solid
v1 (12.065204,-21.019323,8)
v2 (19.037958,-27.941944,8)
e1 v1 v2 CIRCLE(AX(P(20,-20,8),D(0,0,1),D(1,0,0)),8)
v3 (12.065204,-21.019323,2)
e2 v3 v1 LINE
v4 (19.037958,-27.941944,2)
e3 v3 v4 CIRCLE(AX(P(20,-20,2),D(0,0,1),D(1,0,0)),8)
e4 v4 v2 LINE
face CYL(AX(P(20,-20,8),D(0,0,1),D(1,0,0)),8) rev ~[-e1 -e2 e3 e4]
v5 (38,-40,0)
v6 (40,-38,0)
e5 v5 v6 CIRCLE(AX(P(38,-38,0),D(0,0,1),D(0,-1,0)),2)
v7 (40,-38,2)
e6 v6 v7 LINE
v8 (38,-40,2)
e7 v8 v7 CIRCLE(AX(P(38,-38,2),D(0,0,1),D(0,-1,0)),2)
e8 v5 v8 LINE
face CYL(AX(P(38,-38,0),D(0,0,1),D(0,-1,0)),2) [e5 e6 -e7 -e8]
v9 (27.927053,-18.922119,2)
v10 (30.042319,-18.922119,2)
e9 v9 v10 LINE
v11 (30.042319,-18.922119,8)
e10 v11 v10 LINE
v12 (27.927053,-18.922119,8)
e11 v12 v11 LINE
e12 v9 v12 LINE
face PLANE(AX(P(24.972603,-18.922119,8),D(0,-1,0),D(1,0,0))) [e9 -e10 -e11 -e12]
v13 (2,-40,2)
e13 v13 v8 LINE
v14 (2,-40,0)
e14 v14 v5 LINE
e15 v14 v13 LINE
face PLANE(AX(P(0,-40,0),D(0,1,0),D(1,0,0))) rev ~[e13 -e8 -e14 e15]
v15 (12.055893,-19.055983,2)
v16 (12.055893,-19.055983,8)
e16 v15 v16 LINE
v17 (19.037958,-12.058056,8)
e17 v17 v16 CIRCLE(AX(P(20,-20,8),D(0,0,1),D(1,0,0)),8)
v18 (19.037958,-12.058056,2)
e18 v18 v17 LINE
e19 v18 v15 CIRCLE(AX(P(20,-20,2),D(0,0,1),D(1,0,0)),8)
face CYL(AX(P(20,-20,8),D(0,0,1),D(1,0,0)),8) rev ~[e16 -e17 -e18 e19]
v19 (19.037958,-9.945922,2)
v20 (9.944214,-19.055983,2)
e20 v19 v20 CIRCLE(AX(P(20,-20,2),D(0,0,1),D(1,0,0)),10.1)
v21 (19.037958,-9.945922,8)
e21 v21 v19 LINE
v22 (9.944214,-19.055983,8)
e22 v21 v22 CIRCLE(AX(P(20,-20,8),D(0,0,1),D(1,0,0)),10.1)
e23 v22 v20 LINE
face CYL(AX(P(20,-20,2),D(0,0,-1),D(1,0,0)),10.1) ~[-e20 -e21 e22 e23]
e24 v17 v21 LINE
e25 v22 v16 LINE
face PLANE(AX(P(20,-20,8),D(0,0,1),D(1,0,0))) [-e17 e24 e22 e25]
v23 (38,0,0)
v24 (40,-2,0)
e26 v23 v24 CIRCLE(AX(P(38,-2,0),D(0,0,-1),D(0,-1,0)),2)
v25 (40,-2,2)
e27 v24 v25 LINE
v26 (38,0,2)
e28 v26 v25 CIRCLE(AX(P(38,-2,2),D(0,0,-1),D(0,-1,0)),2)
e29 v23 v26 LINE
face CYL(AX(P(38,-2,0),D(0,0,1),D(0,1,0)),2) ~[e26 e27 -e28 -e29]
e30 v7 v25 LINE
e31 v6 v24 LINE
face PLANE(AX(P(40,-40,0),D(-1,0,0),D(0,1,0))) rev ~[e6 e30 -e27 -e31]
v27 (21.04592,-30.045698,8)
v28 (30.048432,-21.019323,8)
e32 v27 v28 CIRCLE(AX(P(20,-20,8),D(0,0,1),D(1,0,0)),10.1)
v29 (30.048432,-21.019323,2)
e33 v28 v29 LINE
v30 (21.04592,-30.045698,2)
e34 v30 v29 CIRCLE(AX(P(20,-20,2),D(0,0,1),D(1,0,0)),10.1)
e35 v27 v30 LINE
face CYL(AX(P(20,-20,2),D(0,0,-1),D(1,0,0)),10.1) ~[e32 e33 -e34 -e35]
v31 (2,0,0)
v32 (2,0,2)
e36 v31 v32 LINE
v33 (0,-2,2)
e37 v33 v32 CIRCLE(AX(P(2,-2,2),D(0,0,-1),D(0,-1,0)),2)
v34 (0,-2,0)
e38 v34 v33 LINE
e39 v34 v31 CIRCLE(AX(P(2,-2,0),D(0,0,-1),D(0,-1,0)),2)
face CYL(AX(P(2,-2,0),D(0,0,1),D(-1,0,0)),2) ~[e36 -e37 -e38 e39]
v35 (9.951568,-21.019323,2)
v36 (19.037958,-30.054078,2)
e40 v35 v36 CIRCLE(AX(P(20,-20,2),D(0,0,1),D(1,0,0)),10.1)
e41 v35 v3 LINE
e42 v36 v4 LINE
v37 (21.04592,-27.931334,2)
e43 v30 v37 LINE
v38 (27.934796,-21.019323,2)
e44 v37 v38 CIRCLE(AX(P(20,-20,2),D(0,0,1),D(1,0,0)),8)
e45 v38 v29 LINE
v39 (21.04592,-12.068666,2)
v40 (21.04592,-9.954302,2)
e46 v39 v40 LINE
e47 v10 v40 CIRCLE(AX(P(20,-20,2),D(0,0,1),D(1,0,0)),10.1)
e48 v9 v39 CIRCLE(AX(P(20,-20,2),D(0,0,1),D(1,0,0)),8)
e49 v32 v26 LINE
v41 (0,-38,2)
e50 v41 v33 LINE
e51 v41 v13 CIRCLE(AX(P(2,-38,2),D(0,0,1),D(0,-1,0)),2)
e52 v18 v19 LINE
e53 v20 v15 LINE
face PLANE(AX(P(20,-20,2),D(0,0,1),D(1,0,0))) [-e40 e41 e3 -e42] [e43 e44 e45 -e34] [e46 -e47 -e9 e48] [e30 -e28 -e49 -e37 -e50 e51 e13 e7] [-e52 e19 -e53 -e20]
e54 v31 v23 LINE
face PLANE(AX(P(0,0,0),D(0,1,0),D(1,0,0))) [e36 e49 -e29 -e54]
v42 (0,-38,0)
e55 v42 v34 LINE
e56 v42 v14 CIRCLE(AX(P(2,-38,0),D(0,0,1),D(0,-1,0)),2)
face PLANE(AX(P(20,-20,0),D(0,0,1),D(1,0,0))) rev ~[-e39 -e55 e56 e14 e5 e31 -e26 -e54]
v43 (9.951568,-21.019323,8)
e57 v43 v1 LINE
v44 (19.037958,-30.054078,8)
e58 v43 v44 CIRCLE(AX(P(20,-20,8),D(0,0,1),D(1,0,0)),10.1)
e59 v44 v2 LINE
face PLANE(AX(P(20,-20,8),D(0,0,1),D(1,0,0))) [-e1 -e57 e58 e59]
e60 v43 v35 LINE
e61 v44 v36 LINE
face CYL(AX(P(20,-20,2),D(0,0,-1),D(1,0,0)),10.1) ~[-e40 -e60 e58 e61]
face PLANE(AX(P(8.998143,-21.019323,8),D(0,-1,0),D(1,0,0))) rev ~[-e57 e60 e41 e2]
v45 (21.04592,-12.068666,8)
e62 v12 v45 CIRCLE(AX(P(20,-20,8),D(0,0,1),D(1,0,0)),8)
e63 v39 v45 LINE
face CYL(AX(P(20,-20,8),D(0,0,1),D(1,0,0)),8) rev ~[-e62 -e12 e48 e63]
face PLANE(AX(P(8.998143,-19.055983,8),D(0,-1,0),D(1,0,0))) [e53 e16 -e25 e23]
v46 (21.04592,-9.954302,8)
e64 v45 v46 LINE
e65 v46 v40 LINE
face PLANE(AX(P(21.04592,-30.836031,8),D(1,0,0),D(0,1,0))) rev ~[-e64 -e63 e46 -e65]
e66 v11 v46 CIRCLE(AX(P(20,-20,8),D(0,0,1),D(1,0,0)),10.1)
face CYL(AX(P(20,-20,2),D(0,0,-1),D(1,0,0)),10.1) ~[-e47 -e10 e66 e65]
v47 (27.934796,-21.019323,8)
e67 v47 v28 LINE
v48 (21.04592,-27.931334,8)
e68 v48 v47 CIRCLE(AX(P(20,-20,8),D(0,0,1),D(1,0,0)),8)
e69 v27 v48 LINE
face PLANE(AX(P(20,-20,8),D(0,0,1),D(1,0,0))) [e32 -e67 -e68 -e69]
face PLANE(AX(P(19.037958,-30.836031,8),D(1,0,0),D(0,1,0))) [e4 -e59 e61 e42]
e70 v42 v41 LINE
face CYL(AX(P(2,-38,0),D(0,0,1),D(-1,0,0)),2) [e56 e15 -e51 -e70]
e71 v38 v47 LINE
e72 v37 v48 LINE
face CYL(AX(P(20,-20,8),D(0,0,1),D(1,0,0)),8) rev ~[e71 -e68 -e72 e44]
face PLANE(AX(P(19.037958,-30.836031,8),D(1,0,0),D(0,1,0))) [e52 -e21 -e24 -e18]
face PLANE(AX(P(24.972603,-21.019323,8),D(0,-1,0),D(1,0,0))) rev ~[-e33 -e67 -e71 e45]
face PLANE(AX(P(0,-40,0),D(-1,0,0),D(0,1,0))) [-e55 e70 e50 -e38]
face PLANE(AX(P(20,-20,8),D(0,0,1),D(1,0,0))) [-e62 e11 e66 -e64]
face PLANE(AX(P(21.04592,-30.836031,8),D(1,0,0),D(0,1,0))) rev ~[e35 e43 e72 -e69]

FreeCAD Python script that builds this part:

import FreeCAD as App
import Part
import Sketcher

V = App.Vector


def edges_at(feature, points):
    """Names of the edges that pass closest to the given points."""
    edges = feature.Shape.Edges
    near = lambda p: min(range(len(edges)), key=lambda i: edges[i].distToShape(Part.Vertex(*p))[0])
    return sorted({f"Edge{near(p) + 1}" for p in points})


def add_polygon(sketch, points):
    """Adds a closed chain of lines whose ends are joined by coincident constraints."""
    first, n = sketch.GeometryCount, len(points)
    for a, b in zip(points, points[1:] + points[:1]):
        sketch.addGeometry(Part.LineSegment(App.Vector(*a, 0), App.Vector(*b, 0)), False)
    for i in range(n):
        sketch.addConstraint(Sketcher.Constraint("Coincident", first + i, 2, first + (i + 1) % n, 1))

doc = App.newDocument("Part")
body = doc.addObject("PartDesign::Body", "Body")

sketch1 = body.newObject("Sketcher::SketchObject", "Sketch")
sketch1.AttachmentSupport = (doc.getObject("XY_Plane"), [""])
sketch1.MapMode = "FlatFace"
add_polygon(sketch1, [(0, 0), (0, -40), (40, -40), (40, 0)])
sketch1.addConstraint(Sketcher.Constraint("Vertical", 0))
sketch1.addConstraint(Sketcher.Constraint("Horizontal", 1))
sketch1.addConstraint(Sketcher.Constraint("Vertical", 2))
sketch1.addConstraint(Sketcher.Constraint("Horizontal", 3))
sketch1.addConstraint(Sketcher.Constraint("Coincident", 3, 2, -1, 1))
sketch1.addConstraint(Sketcher.Constraint("Equal", 3, 0))
sketch1.addConstraint(Sketcher.Constraint("DistanceX", 1, 1, 1, 2, 40.0))
pad1 = body.newObject("PartDesign::Pad", "Pad")
pad1.Profile = sketch1
pad1.Length = 2

sketch2 = body.newObject("Sketcher::SketchObject", "Sketch001")
sketch2.AttachmentSupport = (doc.getObject("XY_Plane"), [""])
sketch2.MapMode = "FlatFace"
sketch2.AttachmentOffset = App.Placement(V(0, 0, 2), App.Rotation())
sketch2.addGeometry(Part.Circle(V(20, -20, 0), V(0, 0, 1), 10), False)
sketch2.addConstraint(Sketcher.Constraint("Diameter", 0, 20.2))
sketch2.addConstraint(Sketcher.Constraint("DistanceX", -1, 1, 0, 3, 20.0))
sketch2.addConstraint(Sketcher.Constraint("DistanceY", 0, 3, -1, 1, 20.0))
pad2 = body.newObject("PartDesign::Pad", "Pad001")
pad2.Profile = sketch2
pad2.Length = 6

sketch3 = body.newObject("Sketcher::SketchObject", "Sketch002")
sketch3.AttachmentSupport = (doc.getObject("XY_Plane"), [""])
sketch3.MapMode = "FlatFace"
sketch3.AttachmentOffset = App.Placement(V(0, 0, 8), App.Rotation())
sketch3.addGeometry(Part.Circle(V(20, -20, 0), V(0, 0, 1), 8), False)
sketch3.addConstraint(Sketcher.Constraint("Diameter", 0, 16.0))
sketch3.addConstraint(Sketcher.Constraint("DistanceX", -1, 1, 0, 3, 20.0))
sketch3.addConstraint(Sketcher.Constraint("DistanceY", 0, 3, -1, 1, 20.0))
pocket1 = body.newObject("PartDesign::Pocket", "Pocket")
pocket1.Profile = sketch3
pocket1.Length = 6

sketch4 = body.newObject("Sketcher::SketchObject", "Sketch003")
sketch4.AttachmentSupport = (doc.getObject("XY_Plane"), [""])
sketch4.MapMode = "FlatFace"
sketch4.AttachmentOffset = App.Placement(V(0, 0, 8), App.Rotation())
add_polygon(sketch4, [(19, -9), (19, -30.8), (21, -30.8), (21, -9)])
add_polygon(sketch4, [(25, -18.9), (25, -21), (32.1, -21), (32.1, -18.9)])
add_polygon(sketch4, [(9, -19.1), (9, -21), (15.9, -21), (15.9, -19.1)])
sketch4.addConstraint(Sketcher.Constraint("Vertical", 0))
sketch4.addConstraint(Sketcher.Constraint("Horizontal", 1))
sketch4.addConstraint(Sketcher.Constraint("Vertical", 2))
sketch4.addConstraint(Sketcher.Constraint("Horizontal", 3))
sketch4.addConstraint(Sketcher.Constraint("Vertical", 4))
sketch4.addConstraint(Sketcher.Constraint("Horizontal", 5))
sketch4.addConstraint(Sketcher.Constraint("Vertical", 6))
sketch4.addConstraint(Sketcher.Constraint("Horizontal", 7))
sketch4.addConstraint(Sketcher.Constraint("Vertical", 8))
sketch4.addConstraint(Sketcher.Constraint("Horizontal", 9))
sketch4.addConstraint(Sketcher.Constraint("Vertical", 10))
sketch4.addConstraint(Sketcher.Constraint("Horizontal", 11))
sketch4.addConstraint(Sketcher.Constraint("Horizontal", 5, 2, 8, 2))
sketch4.addConstraint(Sketcher.Constraint("DistanceX", 1, 1, 1, 2, 2.007961))
sketch4.addConstraint(Sketcher.Constraint("DistanceY", 8, 2, 8, 1, 1.96334))
sketch4.addConstraint(Sketcher.Constraint("DistanceX", 9, 2, 0, 2, 3.123499))
sketch4.addConstraint(Sketcher.Constraint("DistanceX", 5, 1, 5, 2, 7.094803))
sketch4.addConstraint(Sketcher.Constraint("DistanceX", 9, 1, 9, 2, 6.916317))
sketch4.addConstraint(Sketcher.Constraint("DistanceY", 0, 2, 0, 1, 21.864484))
sketch4.addConstraint(Sketcher.Constraint("DistanceY", 4, 2, 4, 1, 2.097204))
sketch4.addConstraint(Sketcher.Constraint("DistanceX", -1, 1, 0, 2, 19.037958))
sketch4.addConstraint(Sketcher.Constraint("DistanceY", 0, 2, -1, 1, 30.836031))
sketch4.addConstraint(Sketcher.Constraint("DistanceY", 6, 2, -1, 1, 18.922119))
sketch4.addConstraint(Sketcher.Constraint("DistanceX", 8, 2, 4, 2, 15.97446))
pocket2 = body.newObject("PartDesign::Pocket", "Pocket001")
pocket2.Profile = sketch4
pocket2.Length = 6
doc.recompute()

fillet = body.newObject("PartDesign::Fillet", "Fillet")
fillet.Base = (pocket2, edges_at(pocket2, [
    (40, -40, 1),
    (40, 0, 1),
    (0, -40, 1),
    (0, 0, 1),
]))
fillet.Radius = 2

doc.recompute()
